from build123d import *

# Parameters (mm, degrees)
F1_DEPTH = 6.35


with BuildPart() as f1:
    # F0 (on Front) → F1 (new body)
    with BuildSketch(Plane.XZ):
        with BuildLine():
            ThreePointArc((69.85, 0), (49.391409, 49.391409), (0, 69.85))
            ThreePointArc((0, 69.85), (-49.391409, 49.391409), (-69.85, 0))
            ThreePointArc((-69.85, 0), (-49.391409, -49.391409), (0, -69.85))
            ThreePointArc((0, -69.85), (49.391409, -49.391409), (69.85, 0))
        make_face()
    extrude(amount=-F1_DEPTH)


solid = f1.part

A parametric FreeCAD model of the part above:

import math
import FreeCAD as App
import Part
import Sketcher
Q = App.Units.Quantity

doc = App.newDocument("Part")
body = doc.addObject("PartDesign::Body", "Body")

sketch1 = body.newObject("Sketcher::SketchObject", "Sketch")
sketch1.AttachmentSupport = (doc.getObject("XZ_Plane"), [""])
sketch1.MapMode = "FlatFace"
sketch1.addGeometry([
    Part.ArcOfCircle(Part.Circle(App.Vector(0, 0, 0), App.Vector(0, 0, 1), 70), math.radians(0), math.radians(90)),
    Part.ArcOfCircle(Part.Circle(App.Vector(0, 0, 0), App.Vector(0, 0, 1), 70), math.radians(90), math.radians(180)),
    Part.ArcOfCircle(Part.Circle(App.Vector(0, 0, 0), App.Vector(0, 0, 1), 70), math.radians(180), math.radians(270)),
    Part.ArcOfCircle(Part.Circle(App.Vector(0, 0, 0), App.Vector(0, 0, 1), 70), math.radians(-90), math.radians(0)),
], False)
sketch1.addConstraint([
    Sketcher.Constraint("Tangent", 0, 2, 1, 1),
    Sketcher.Constraint("Tangent", 1, 2, 2, 1),
    Sketcher.Constraint("Tangent", 2, 2, 3, 1),
    Sketcher.Constraint("Tangent", 3, 2, 0, 1),
    Sketcher.Constraint("Coincident", 0, 3, -1, 1),
    Sketcher.Constraint("Equal", 0, 1),
    Sketcher.Constraint("PointOnObject", 0, 2, -2),
    Sketcher.Constraint("PointOnObject", 1, 2, -1),
    Sketcher.Constraint("PointOnObject", 2, 2, -2),
    Sketcher.Constraint("PointOnObject", 3, 2, -1),
    Sketcher.Constraint("Radius", 0, Q("2.75 in")),
])
pad1 = body.newObject("PartDesign::Pad", "Pad")
pad1.Profile = sketch1
pad1.Length = Q("0.25 in")
pad1.Reversed = True

doc.recompute()
